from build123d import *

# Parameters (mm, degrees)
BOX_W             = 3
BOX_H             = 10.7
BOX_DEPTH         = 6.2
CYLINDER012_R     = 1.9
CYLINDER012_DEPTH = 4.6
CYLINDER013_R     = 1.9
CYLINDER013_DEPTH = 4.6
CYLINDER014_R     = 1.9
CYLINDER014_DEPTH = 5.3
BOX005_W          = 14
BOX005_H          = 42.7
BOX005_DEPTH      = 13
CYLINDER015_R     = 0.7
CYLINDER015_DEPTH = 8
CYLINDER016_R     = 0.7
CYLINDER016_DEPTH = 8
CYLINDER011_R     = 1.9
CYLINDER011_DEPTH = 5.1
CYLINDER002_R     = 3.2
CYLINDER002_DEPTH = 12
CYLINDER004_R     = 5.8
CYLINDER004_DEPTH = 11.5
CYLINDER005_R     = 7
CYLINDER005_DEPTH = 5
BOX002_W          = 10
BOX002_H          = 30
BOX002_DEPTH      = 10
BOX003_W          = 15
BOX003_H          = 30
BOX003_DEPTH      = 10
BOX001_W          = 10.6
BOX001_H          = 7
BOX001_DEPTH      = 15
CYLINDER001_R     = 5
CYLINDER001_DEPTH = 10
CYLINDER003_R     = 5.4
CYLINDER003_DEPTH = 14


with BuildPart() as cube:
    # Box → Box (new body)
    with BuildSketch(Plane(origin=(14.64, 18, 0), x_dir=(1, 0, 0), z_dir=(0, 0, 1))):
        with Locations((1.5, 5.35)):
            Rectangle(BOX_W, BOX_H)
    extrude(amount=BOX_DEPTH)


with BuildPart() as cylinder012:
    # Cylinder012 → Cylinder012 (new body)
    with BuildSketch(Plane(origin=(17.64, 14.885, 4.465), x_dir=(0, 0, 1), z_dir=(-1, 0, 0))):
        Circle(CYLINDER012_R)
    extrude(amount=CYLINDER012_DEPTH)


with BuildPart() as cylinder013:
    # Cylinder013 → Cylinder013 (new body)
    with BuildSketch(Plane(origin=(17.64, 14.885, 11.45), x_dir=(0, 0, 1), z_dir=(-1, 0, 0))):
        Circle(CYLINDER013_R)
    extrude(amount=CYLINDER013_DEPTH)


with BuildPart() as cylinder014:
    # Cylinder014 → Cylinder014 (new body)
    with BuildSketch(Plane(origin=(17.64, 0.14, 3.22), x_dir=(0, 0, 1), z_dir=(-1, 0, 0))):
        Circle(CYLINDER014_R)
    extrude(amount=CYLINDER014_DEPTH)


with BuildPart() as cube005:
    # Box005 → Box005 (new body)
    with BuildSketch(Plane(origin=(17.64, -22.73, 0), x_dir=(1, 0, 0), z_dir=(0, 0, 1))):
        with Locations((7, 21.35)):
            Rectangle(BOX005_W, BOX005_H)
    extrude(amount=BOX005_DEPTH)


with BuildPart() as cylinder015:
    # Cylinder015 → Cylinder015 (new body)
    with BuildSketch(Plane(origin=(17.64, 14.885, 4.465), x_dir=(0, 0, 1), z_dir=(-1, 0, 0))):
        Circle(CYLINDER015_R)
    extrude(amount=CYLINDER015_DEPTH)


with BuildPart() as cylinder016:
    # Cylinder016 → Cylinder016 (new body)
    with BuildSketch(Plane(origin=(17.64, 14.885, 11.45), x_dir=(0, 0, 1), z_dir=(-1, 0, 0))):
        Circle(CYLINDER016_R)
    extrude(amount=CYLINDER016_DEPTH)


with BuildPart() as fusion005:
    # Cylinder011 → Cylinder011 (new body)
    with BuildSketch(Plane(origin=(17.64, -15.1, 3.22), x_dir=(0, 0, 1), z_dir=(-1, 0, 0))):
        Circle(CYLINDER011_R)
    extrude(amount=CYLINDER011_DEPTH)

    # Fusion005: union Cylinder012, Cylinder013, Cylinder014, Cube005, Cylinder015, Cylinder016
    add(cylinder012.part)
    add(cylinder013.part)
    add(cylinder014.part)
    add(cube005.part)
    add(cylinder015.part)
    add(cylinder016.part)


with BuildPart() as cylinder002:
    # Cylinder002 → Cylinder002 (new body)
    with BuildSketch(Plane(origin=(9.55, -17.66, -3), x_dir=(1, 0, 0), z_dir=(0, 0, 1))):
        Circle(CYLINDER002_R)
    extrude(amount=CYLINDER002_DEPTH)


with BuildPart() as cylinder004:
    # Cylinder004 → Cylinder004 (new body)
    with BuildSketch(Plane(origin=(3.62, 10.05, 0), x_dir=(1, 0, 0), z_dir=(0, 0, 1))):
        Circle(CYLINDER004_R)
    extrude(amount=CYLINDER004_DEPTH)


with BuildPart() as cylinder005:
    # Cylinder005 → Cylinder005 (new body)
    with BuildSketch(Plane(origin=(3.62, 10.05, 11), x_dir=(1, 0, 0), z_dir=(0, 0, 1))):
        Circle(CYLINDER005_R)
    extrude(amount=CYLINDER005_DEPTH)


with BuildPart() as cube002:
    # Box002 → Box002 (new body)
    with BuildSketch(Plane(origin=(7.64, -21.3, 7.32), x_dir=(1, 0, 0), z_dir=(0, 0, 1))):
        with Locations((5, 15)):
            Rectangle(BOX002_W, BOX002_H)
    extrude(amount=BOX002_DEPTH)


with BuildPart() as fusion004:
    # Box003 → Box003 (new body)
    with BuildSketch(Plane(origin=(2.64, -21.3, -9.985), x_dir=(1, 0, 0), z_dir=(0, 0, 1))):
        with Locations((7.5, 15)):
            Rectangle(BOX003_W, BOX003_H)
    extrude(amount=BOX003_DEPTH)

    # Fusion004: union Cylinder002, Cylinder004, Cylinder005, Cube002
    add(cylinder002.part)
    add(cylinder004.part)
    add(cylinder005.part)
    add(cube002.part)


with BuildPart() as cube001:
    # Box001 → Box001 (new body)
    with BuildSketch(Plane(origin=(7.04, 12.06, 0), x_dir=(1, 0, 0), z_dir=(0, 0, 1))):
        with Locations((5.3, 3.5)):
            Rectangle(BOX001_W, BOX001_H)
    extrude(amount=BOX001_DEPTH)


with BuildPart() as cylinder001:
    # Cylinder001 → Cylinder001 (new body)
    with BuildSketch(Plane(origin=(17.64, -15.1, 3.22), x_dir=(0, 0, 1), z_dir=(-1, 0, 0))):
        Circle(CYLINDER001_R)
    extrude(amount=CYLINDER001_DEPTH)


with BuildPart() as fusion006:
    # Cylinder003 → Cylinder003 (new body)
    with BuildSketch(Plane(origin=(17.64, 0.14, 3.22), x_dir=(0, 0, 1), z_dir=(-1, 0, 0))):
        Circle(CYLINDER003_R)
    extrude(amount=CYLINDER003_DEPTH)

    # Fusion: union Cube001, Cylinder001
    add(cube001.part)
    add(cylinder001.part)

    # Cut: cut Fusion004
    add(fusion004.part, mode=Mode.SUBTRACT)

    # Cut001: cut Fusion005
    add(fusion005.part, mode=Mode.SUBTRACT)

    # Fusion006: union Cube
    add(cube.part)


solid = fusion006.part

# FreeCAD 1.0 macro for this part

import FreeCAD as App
import Part
import Sketcher

V = App.Vector

doc = App.newDocument("Part")
body = doc.addObject("PartDesign::Body", "Body")

# Sketch on XY plane
sketch1 = body.newObject("Sketcher::SketchObject", "Sketch")
sketch1.AttachmentSupport = (doc.getObject("XY_Plane"), [""])
sketch1.MapMode = "FlatFace"
sketch1.addGeometry(Part.LineSegment(V(14.6, 28.7, 0), V(14.6, 18, 0)), False)
sketch1.addGeometry(Part.LineSegment(V(14.6, 18, 0), V(17.6, 18, 0)), False)
sketch1.addGeometry(Part.LineSegment(V(17.6, 18, 0), V(17.6, 28.7, 0)), False)
sketch1.addGeometry(Part.LineSegment(V(17.6, 28.7, 0), V(14.6, 28.7, 0)), False)
sketch1.addConstraint(Sketcher.Constraint("Coincident", 0, 2, 1, 1))
sketch1.addConstraint(Sketcher.Constraint("Coincident", 1, 2, 2, 1))
sketch1.addConstraint(Sketcher.Constraint("Coincident", 2, 2, 3, 1))
sketch1.addConstraint(Sketcher.Constraint("Coincident", 3, 2, 0, 1))
sketch1.addConstraint(Sketcher.Constraint("Vertical", 0))
sketch1.addConstraint(Sketcher.Constraint("Horizontal", 1))
sketch1.addConstraint(Sketcher.Constraint("Vertical", 2))
sketch1.addConstraint(Sketcher.Constraint("Horizontal", 3))
sketch1.addConstraint(Sketcher.Constraint("DistanceX", 1, 1, 1, 2, 3.0))
sketch1.addConstraint(Sketcher.Constraint("DistanceY", 0, 2, 0, 1, 10.7))
sketch1.addConstraint(Sketcher.Constraint("DistanceY", -1, 1, 0, 2, 18.0))
sketch1.addConstraint(Sketcher.Constraint("DistanceX", -1, 1, 0, 2, 14.64))
pad1 = body.newObject("PartDesign::Pad", "Pad")
pad1.Profile = sketch1
pad1.Length = 6.2
body2 = doc.addObject("PartDesign::Body", "Body001")

# Sketch on YZ plane
sketch2 = body2.newObject("Sketcher::SketchObject", "Sketch001")
sketch2.AttachmentSupport = (doc.getObject("YZ_Plane001"), [""])
sketch2.MapMode = "FlatFace"
sketch2.AttachmentOffset = App.Placement(V(0, 0, 17.64), App.Rotation())
sketch2.addGeometry(Part.Circle(V(14.9, 4.5, 0), V(0, 0, 1), 1.9), False)
sketch2.addConstraint(Sketcher.Constraint("Diameter", 0, 3.8))
sketch2.addConstraint(Sketcher.Constraint("DistanceX", -1, 1, 0, 3, 14.885))
sketch2.addConstraint(Sketcher.Constraint("DistanceY", -1, 1, 0, 3, 4.465))
pad2 = body2.newObject("PartDesign::Pad", "Pad001")
pad2.Profile = sketch2
pad2.Length = 4.6
pad2.Reversed = True
body3 = doc.addObject("PartDesign::Body", "Body002")

# Sketch on YZ plane
sketch3 = body3.newObject("Sketcher::SketchObject", "Sketch002")
sketch3.AttachmentSupport = (doc.getObject("YZ_Plane002"), [""])
sketch3.MapMode = "FlatFace"
sketch3.AttachmentOffset = App.Placement(V(0, 0, 17.64), App.Rotation())
sketch3.addGeometry(Part.Circle(V(14.9, 11.4, 0), V(0, 0, 1), 1.9), False)
sketch3.addConstraint(Sketcher.Constraint("Diameter", 0, 3.8))
sketch3.addConstraint(Sketcher.Constraint("DistanceY", -1, 1, 0, 3, 11.45))
sketch3.addConstraint(Sketcher.Constraint("DistanceX", -1, 1, 0, 3, 14.885))
pad3 = body3.newObject("PartDesign::Pad", "Pad002")
pad3.Profile = sketch3
pad3.Length = 4.6
pad3.Reversed = True
body4 = doc.addObject("PartDesign::Body", "Body003")

# Sketch on YZ plane
sketch4 = body4.newObject("Sketcher::SketchObject", "Sketch003")
sketch4.AttachmentSupport = (doc.getObject("YZ_Plane003"), [""])
sketch4.MapMode = "FlatFace"
sketch4.AttachmentOffset = App.Placement(V(0, 0, 17.64), App.Rotation())
sketch4.addGeometry(Part.Circle(V(0.1, 3.2, 0), V(0, 0, 1), 1.9), False)
sketch4.addConstraint(Sketcher.Constraint("Diameter", 0, 3.8))
sketch4.addConstraint(Sketcher.Constraint("DistanceX", -1, 1, 0, 3, 0.14))
sketch4.addConstraint(Sketcher.Constraint("DistanceY", -1, 1, 0, 3, 3.22))
pad4 = body4.newObject("PartDesign::Pad", "Pad003")
pad4.Profile = sketch4
pad4.Length = 5.3
pad4.Reversed = True
body5 = doc.addObject("PartDesign::Body", "Body004")

# Sketch on XY plane
sketch5 = body5.newObject("Sketcher::SketchObject", "Sketch004")
sketch5.AttachmentSupport = (doc.getObject("XY_Plane004"), [""])
sketch5.MapMode = "FlatFace"
sketch5.addGeometry(Part.LineSegment(V(18, 20, 0), V(18, -23, 0)), False)
sketch5.addGeometry(Part.LineSegment(V(18, -23, 0), V(32, -23, 0)), False)
sketch5.addGeometry(Part.LineSegment(V(32, -23, 0), V(32, 20, 0)), False)
sketch5.addGeometry(Part.LineSegment(V(32, 20, 0), V(18, 20, 0)), False)
sketch5.addConstraint(Sketcher.Constraint("Coincident", 0, 2, 1, 1))
sketch5.addConstraint(Sketcher.Constraint("Coincident", 1, 2, 2, 1))
sketch5.addConstraint(Sketcher.Constraint("Coincident", 2, 2, 3, 1))
sketch5.addConstraint(Sketcher.Constraint("Coincident", 3, 2, 0, 1))
sketch5.addConstraint(Sketcher.Constraint("Vertical", 0))
sketch5.addConstraint(Sketcher.Constraint("Horizontal", 1))
sketch5.addConstraint(Sketcher.Constraint("Vertical", 2))
sketch5.addConstraint(Sketcher.Constraint("Horizontal", 3))
sketch5.addConstraint(Sketcher.Constraint("DistanceX", 1, 1, 1, 2, 14.0))
sketch5.addConstraint(Sketcher.Constraint("DistanceY", 0, 2, 0, 1, 42.7))
sketch5.addConstraint(Sketcher.Constraint("DistanceX", -1, 1, 0, 2, 17.64))
sketch5.addConstraint(Sketcher.Constraint("DistanceY", 0, 2, -1, 1, 22.73))
pad5 = body5.newObject("PartDesign::Pad", "Pad004")
pad5.Profile = sketch5
pad5.Length = 13
body6 = doc.addObject("PartDesign::Body", "Body005")

# Sketch on YZ plane
sketch6 = body6.newObject("Sketcher::SketchObject", "Sketch005")
sketch6.AttachmentSupport = (doc.getObject("YZ_Plane005"), [""])
sketch6.MapMode = "FlatFace"
sketch6.AttachmentOffset = App.Placement(V(0, 0, 17.64), App.Rotation())
sketch6.addGeometry(Part.Circle(V(14.9, 4.5, 0), V(0, 0, 1), 0.7), False)
sketch6.addConstraint(Sketcher.Constraint("Diameter", 0, 1.4))
sketch6.addConstraint(Sketcher.Constraint("DistanceX", -1, 1, 0, 3, 14.885))
sketch6.addConstraint(Sketcher.Constraint("DistanceY", -1, 1, 0, 3, 4.465))
pad6 = body6.newObject("PartDesign::Pad", "Pad005")
pad6.Profile = sketch6
pad6.Length = 8
pad6.Reversed = True
body7 = doc.addObject("PartDesign::Body", "Body006")

# Sketch on YZ plane
sketch7 = body7.newObject("Sketcher::SketchObject", "Sketch006")
sketch7.AttachmentSupport = (doc.getObject("YZ_Plane006"), [""])
sketch7.MapMode = "FlatFace"
sketch7.AttachmentOffset = App.Placement(V(0, 0, 17.64), App.Rotation())
sketch7.addGeometry(Part.Circle(V(14.9, 11.4, 0), V(0, 0, 1), 0.7), False)
sketch7.addConstraint(Sketcher.Constraint("Diameter", 0, 1.4))
sketch7.addConstraint(Sketcher.Constraint("DistanceY", -1, 1, 0, 3, 11.45))
sketch7.addConstraint(Sketcher.Constraint("DistanceX", -1, 1, 0, 3, 14.885))
pad7 = body7.newObject("PartDesign::Pad", "Pad006")
pad7.Profile = sketch7
pad7.Length = 8
pad7.Reversed = True
body8 = doc.addObject("PartDesign::Body", "Body007")
body8.AllowCompound = True

# Sketch on YZ plane
sketch8 = body8.newObject("Sketcher::SketchObject", "Sketch007")
sketch8.AttachmentSupport = (doc.getObject("YZ_Plane007"), [""])
sketch8.MapMode = "FlatFace"
sketch8.AttachmentOffset = App.Placement(V(0, 0, 17.64), App.Rotation())
sketch8.addGeometry(Part.Circle(V(-15.1, 3.2, 0), V(0, 0, 1), 1.9), False)
sketch8.addConstraint(Sketcher.Constraint("Diameter", 0, 3.8))
sketch8.addConstraint(Sketcher.Constraint("DistanceX", 0, 3, -1, 1, 15.1))
sketch8.addConstraint(Sketcher.Constraint("DistanceY", -1, 1, 0, 3, 3.22))
pad8 = body8.newObject("PartDesign::Pad", "Pad007")
pad8.Profile = sketch8
pad8.Length = 5.1
pad8.Reversed = True
doc.recompute()

boolean = body8.newObject("PartDesign::Boolean", "Boolean")
boolean.Type = "Fuse"
boolean.addObjects([body2])
doc.recompute()

boolean2 = body8.newObject("PartDesign::Boolean", "Boolean001")
boolean2.Type = "Fuse"
boolean2.addObjects([body3])
doc.recompute()

boolean3 = body8.newObject("PartDesign::Boolean", "Boolean002")
boolean3.Type = "Fuse"
boolean3.addObjects([body4])
doc.recompute()

boolean4 = body8.newObject("PartDesign::Boolean", "Boolean003")
boolean4.Type = "Fuse"
boolean4.addObjects([body5])
doc.recompute()

boolean5 = body8.newObject("PartDesign::Boolean", "Boolean004")
boolean5.Type = "Fuse"
boolean5.addObjects([body6])
doc.recompute()

boolean6 = body8.newObject("PartDesign::Boolean", "Boolean005")
boolean6.Type = "Fuse"
boolean6.addObjects([body7])
body9 = doc.addObject("PartDesign::Body", "Body008")

# Sketch on XY plane
sketch9 = body9.newObject("Sketcher::SketchObject", "Sketch008")
sketch9.AttachmentSupport = (doc.getObject("XY_Plane008"), [""])
sketch9.MapMode = "FlatFace"
sketch9.AttachmentOffset = App.Placement(V(0, 0, -3), App.Rotation())
sketch9.addGeometry(Part.Circle(V(9.6, -17.7, 0), V(0, 0, 1), 3.2), False)
sketch9.addConstraint(Sketcher.Constraint("Diameter", 0, 6.4))
sketch9.addConstraint(Sketcher.Constraint("DistanceX", -1, 1, 0, 3, 9.55))
sketch9.addConstraint(Sketcher.Constraint("DistanceY", 0, 3, -1, 1, 17.66))
pad9 = body9.newObject("PartDesign::Pad", "Pad008")
pad9.Profile = sketch9
pad9.Length = 12
body10 = doc.addObject("PartDesign::Body", "Body009")

# Sketch on XY plane
sketch10 = body10.newObject("Sketcher::SketchObject", "Sketch009")
sketch10.AttachmentSupport = (doc.getObject("XY_Plane009"), [""])
sketch10.MapMode = "FlatFace"
sketch10.addGeometry(Part.Circle(V(4, 10, 0), V(0, 0, 1), 6), False)
sketch10.addConstraint(Sketcher.Constraint("Diameter", 0, 11.6))
sketch10.addConstraint(Sketcher.Constraint("DistanceX", -1, 1, 0, 3, 3.62))
sketch10.addConstraint(Sketcher.Constraint("DistanceY", -1, 1, 0, 3, 10.05))
pad10 = body10.newObject("PartDesign::Pad", "Pad009")
pad10.Profile = sketch10
pad10.Length = 11.5
body11 = doc.addObject("PartDesign::Body", "Body010")

# Sketch on XY plane
sketch11 = body11.newObject("Sketcher::SketchObject", "Sketch010")
sketch11.AttachmentSupport = (doc.getObject("XY_Plane010"), [""])
sketch11.MapMode = "FlatFace"
sketch11.AttachmentOffset = App.Placement(V(0, 0, 11), App.Rotation())
sketch11.addGeometry(Part.Circle(V(4, 10, 0), V(0, 0, 1), 7), False)
sketch11.addConstraint(Sketcher.Constraint("Diameter", 0, 14.0))
sketch11.addConstraint(Sketcher.Constraint("DistanceX", -1, 1, 0, 3, 3.62))
sketch11.addConstraint(Sketcher.Constraint("DistanceY", -1, 1, 0, 3, 10.05))
pad11 = body11.newObject("PartDesign::Pad", "Pad010")
pad11.Profile = sketch11
pad11.Length = 5
body12 = doc.addObject("PartDesign::Body", "Body011")

# Sketch on XY plane
sketch12 = body12.newObject("Sketcher::SketchObject", "Sketch011")
sketch12.AttachmentSupport = (doc.getObject("XY_Plane011"), [""])
sketch12.MapMode = "FlatFace"
sketch12.AttachmentOffset = App.Placement(V(0, 0, 7.32), App.Rotation())
sketch12.addGeometry(Part.LineSegment(V(8, 9, 0), V(8, -21, 0)), False)
sketch12.addGeometry(Part.LineSegment(V(8, -21, 0), V(18, -21, 0)), False)
sketch12.addGeometry(Part.LineSegment(V(18, -21, 0), V(18, 9, 0)), False)
sketch12.addGeometry(Part.LineSegment(V(18, 9, 0), V(8, 9, 0)), False)
sketch12.addConstraint(Sketcher.Constraint("Coincident", 0, 2, 1, 1))
sketch12.addConstraint(Sketcher.Constraint("Coincident", 1, 2, 2, 1))
sketch12.addConstraint(Sketcher.Constraint("Coincident", 2, 2, 3, 1))
sketch12.addConstraint(Sketcher.Constraint("Coincident", 3, 2, 0, 1))
sketch12.addConstraint(Sketcher.Constraint("Vertical", 0))
sketch12.addConstraint(Sketcher.Constraint("Horizontal", 1))
sketch12.addConstraint(Sketcher.Constraint("Vertical", 2))
sketch12.addConstraint(Sketcher.Constraint("Horizontal", 3))
sketch12.addConstraint(Sketcher.Constraint("DistanceX", 1, 1, 1, 2, 10.0))
sketch12.addConstraint(Sketcher.Constraint("DistanceY", 0, 2, 0, 1, 30.0))
sketch12.addConstraint(Sketcher.Constraint("DistanceY", 0, 2, -1, 1, 21.3))
sketch12.addConstraint(Sketcher.Constraint("DistanceX", -1, 1, 0, 2, 7.64))
pad12 = body12.newObject("PartDesign::Pad", "Pad011")
pad12.Profile = sketch12
pad12.Length = 10
body13 = doc.addObject("PartDesign::Body", "Body012")

# Sketch on XY plane
sketch13 = body13.newObject("Sketcher::SketchObject", "Sketch012")
sketch13.AttachmentSupport = (doc.getObject("XY_Plane012"), [""])
sketch13.MapMode = "FlatFace"
sketch13.AttachmentOffset = App.Placement(V(0, 0, -9.985), App.Rotation())
sketch13.addGeometry(Part.LineSegment(V(3, 9, 0), V(3, -21, 0)), False)
sketch13.addGeometry(Part.LineSegment(V(3, -21, 0), V(18, -21, 0)), False)
sketch13.addGeometry(Part.LineSegment(V(18, -21, 0), V(18, 9, 0)), False)
sketch13.addGeometry(Part.LineSegment(V(18, 9, 0), V(3, 9, 0)), False)
sketch13.addConstraint(Sketcher.Constraint("Coincident", 0, 2, 1, 1))
sketch13.addConstraint(Sketcher.Constraint("Coincident", 1, 2, 2, 1))
sketch13.addConstraint(Sketcher.Constraint("Coincident", 2, 2, 3, 1))
sketch13.addConstraint(Sketcher.Constraint("Coincident", 3, 2, 0, 1))
sketch13.addConstraint(Sketcher.Constraint("Vertical", 0))
sketch13.addConstraint(Sketcher.Constraint("Horizontal", 1))
sketch13.addConstraint(Sketcher.Constraint("Vertical", 2))
sketch13.addConstraint(Sketcher.Constraint("Horizontal", 3))
sketch13.addConstraint(Sketcher.Constraint("DistanceX", 1, 1, 1, 2, 15.0))
sketch13.addConstraint(Sketcher.Constraint("DistanceY", 0, 2, 0, 1, 30.0))
sketch13.addConstraint(Sketcher.Constraint("DistanceY", 0, 2, -1, 1, 21.3))
sketch13.addConstraint(Sketcher.Constraint("DistanceX", -1, 1, 0, 2, 2.64))
pad13 = body13.newObject("PartDesign::Pad", "Pad012")
pad13.Profile = sketch13
pad13.Length = 10
doc.recompute()

boolean7 = body13.newObject("PartDesign::Boolean", "Boolean006")
boolean7.Type = "Fuse"
boolean7.addObjects([body9])
doc.recompute()

boolean8 = body13.newObject("PartDesign::Boolean", "Boolean007")
boolean8.Type = "Fuse"
boolean8.addObjects([body10])
doc.recompute()

boolean9 = body13.newObject("PartDesign::Boolean", "Boolean008")
boolean9.Type = "Fuse"
boolean9.addObjects([body11])
doc.recompute()

boolean10 = body13.newObject("PartDesign::Boolean", "Boolean009")
boolean10.Type = "Fuse"
boolean10.addObjects([body12])
body14 = doc.addObject("PartDesign::Body", "Body013")

# Sketch on XY plane
sketch14 = body14.newObject("Sketcher::SketchObject", "Sketch013")
sketch14.AttachmentSupport = (doc.getObject("XY_Plane013"), [""])
sketch14.MapMode = "FlatFace"
sketch14.addGeometry(Part.LineSegment(V(7, 19, 0), V(7, 12, 0)), False)
sketch14.addGeometry(Part.LineSegment(V(7, 12, 0), V(18, 12, 0)), False)
sketch14.addGeometry(Part.LineSegment(V(18, 12, 0), V(18, 19, 0)), False)
sketch14.addGeometry(Part.LineSegment(V(18, 19, 0), V(7, 19, 0)), False)
sketch14.addConstraint(Sketcher.Constraint("Coincident", 0, 2, 1, 1))
sketch14.addConstraint(Sketcher.Constraint("Coincident", 1, 2, 2, 1))
sketch14.addConstraint(Sketcher.Constraint("Coincident", 2, 2, 3, 1))
sketch14.addConstraint(Sketcher.Constraint("Coincident", 3, 2, 0, 1))
sketch14.addConstraint(Sketcher.Constraint("Vertical", 0))
sketch14.addConstraint(Sketcher.Constraint("Horizontal", 1))
sketch14.addConstraint(Sketcher.Constraint("Vertical", 2))
sketch14.addConstraint(Sketcher.Constraint("Horizontal", 3))
sketch14.addConstraint(Sketcher.Constraint("DistanceY", 0, 2, 0, 1, 7.0))
sketch14.addConstraint(Sketcher.Constraint("DistanceX", 1, 1, 1, 2, 10.6))
sketch14.addConstraint(Sketcher.Constraint("DistanceX", -1, 1, 0, 2, 7.04))
sketch14.addConstraint(Sketcher.Constraint("DistanceY", -1, 1, 0, 2, 12.06))
pad14 = body14.newObject("PartDesign::Pad", "Pad013")
pad14.Profile = sketch14
pad14.Length = 15
body15 = doc.addObject("PartDesign::Body", "Body014")

# Sketch on YZ plane
sketch15 = body15.newObject("Sketcher::SketchObject", "Sketch014")
sketch15.AttachmentSupport = (doc.getObject("YZ_Plane014"), [""])
sketch15.MapMode = "FlatFace"
sketch15.AttachmentOffset = App.Placement(V(0, 0, 17.64), App.Rotation())
sketch15.addGeometry(Part.Circle(V(-15, 3, 0), V(0, 0, 1), 5), False)
sketch15.addConstraint(Sketcher.Constraint("Diameter", 0, 10.0))
sketch15.addConstraint(Sketcher.Constraint("DistanceX", 0, 3, -1, 1, 15.1))
sketch15.addConstraint(Sketcher.Constraint("DistanceY", -1, 1, 0, 3, 3.22))
pad15 = body15.newObject("PartDesign::Pad", "Pad014")
pad15.Profile = sketch15
pad15.Length = 10
pad15.Reversed = True
body16 = doc.addObject("PartDesign::Body", "Body015")
body16.AllowCompound = True

# Sketch on YZ plane
sketch16 = body16.newObject("Sketcher::SketchObject", "Sketch015")
sketch16.AttachmentSupport = (doc.getObject("YZ_Plane015"), [""])
sketch16.MapMode = "FlatFace"
sketch16.AttachmentOffset = App.Placement(V(0, 0, 17.64), App.Rotation())
sketch16.addGeometry(Part.Circle(V(0, 3, 0), V(0, 0, 1), 5), False)
sketch16.addConstraint(Sketcher.Constraint("Diameter", 0, 10.8))
sketch16.addConstraint(Sketcher.Constraint("DistanceX", -1, 1, 0, 3, 0.14))
sketch16.addConstraint(Sketcher.Constraint("DistanceY", -1, 1, 0, 3, 3.22))
pad16 = body16.newObject("PartDesign::Pad", "Pad015")
pad16.Profile = sketch16
pad16.Length = 14
pad16.Reversed = True
doc.recompute()

boolean11 = body16.newObject("PartDesign::Boolean", "Boolean010")
boolean11.Type = "Fuse"
boolean11.addObjects([body14])
doc.recompute()

boolean12 = body16.newObject("PartDesign::Boolean", "Boolean011")
boolean12.Type = "Fuse"
boolean12.addObjects([body15])
doc.recompute()

boolean13 = body16.newObject("PartDesign::Boolean", "Boolean012")
boolean13.Type = "Cut"
boolean13.addObjects([body13])
doc.recompute()

boolean14 = body16.newObject("PartDesign::Boolean", "Boolean013")
boolean14.Type = "Cut"
boolean14.addObjects([body8])
doc.recompute()

boolean15 = body16.newObject("PartDesign::Boolean", "Boolean014")
boolean15.Type = "Fuse"
boolean15.addObjects([body])

doc.recompute()
